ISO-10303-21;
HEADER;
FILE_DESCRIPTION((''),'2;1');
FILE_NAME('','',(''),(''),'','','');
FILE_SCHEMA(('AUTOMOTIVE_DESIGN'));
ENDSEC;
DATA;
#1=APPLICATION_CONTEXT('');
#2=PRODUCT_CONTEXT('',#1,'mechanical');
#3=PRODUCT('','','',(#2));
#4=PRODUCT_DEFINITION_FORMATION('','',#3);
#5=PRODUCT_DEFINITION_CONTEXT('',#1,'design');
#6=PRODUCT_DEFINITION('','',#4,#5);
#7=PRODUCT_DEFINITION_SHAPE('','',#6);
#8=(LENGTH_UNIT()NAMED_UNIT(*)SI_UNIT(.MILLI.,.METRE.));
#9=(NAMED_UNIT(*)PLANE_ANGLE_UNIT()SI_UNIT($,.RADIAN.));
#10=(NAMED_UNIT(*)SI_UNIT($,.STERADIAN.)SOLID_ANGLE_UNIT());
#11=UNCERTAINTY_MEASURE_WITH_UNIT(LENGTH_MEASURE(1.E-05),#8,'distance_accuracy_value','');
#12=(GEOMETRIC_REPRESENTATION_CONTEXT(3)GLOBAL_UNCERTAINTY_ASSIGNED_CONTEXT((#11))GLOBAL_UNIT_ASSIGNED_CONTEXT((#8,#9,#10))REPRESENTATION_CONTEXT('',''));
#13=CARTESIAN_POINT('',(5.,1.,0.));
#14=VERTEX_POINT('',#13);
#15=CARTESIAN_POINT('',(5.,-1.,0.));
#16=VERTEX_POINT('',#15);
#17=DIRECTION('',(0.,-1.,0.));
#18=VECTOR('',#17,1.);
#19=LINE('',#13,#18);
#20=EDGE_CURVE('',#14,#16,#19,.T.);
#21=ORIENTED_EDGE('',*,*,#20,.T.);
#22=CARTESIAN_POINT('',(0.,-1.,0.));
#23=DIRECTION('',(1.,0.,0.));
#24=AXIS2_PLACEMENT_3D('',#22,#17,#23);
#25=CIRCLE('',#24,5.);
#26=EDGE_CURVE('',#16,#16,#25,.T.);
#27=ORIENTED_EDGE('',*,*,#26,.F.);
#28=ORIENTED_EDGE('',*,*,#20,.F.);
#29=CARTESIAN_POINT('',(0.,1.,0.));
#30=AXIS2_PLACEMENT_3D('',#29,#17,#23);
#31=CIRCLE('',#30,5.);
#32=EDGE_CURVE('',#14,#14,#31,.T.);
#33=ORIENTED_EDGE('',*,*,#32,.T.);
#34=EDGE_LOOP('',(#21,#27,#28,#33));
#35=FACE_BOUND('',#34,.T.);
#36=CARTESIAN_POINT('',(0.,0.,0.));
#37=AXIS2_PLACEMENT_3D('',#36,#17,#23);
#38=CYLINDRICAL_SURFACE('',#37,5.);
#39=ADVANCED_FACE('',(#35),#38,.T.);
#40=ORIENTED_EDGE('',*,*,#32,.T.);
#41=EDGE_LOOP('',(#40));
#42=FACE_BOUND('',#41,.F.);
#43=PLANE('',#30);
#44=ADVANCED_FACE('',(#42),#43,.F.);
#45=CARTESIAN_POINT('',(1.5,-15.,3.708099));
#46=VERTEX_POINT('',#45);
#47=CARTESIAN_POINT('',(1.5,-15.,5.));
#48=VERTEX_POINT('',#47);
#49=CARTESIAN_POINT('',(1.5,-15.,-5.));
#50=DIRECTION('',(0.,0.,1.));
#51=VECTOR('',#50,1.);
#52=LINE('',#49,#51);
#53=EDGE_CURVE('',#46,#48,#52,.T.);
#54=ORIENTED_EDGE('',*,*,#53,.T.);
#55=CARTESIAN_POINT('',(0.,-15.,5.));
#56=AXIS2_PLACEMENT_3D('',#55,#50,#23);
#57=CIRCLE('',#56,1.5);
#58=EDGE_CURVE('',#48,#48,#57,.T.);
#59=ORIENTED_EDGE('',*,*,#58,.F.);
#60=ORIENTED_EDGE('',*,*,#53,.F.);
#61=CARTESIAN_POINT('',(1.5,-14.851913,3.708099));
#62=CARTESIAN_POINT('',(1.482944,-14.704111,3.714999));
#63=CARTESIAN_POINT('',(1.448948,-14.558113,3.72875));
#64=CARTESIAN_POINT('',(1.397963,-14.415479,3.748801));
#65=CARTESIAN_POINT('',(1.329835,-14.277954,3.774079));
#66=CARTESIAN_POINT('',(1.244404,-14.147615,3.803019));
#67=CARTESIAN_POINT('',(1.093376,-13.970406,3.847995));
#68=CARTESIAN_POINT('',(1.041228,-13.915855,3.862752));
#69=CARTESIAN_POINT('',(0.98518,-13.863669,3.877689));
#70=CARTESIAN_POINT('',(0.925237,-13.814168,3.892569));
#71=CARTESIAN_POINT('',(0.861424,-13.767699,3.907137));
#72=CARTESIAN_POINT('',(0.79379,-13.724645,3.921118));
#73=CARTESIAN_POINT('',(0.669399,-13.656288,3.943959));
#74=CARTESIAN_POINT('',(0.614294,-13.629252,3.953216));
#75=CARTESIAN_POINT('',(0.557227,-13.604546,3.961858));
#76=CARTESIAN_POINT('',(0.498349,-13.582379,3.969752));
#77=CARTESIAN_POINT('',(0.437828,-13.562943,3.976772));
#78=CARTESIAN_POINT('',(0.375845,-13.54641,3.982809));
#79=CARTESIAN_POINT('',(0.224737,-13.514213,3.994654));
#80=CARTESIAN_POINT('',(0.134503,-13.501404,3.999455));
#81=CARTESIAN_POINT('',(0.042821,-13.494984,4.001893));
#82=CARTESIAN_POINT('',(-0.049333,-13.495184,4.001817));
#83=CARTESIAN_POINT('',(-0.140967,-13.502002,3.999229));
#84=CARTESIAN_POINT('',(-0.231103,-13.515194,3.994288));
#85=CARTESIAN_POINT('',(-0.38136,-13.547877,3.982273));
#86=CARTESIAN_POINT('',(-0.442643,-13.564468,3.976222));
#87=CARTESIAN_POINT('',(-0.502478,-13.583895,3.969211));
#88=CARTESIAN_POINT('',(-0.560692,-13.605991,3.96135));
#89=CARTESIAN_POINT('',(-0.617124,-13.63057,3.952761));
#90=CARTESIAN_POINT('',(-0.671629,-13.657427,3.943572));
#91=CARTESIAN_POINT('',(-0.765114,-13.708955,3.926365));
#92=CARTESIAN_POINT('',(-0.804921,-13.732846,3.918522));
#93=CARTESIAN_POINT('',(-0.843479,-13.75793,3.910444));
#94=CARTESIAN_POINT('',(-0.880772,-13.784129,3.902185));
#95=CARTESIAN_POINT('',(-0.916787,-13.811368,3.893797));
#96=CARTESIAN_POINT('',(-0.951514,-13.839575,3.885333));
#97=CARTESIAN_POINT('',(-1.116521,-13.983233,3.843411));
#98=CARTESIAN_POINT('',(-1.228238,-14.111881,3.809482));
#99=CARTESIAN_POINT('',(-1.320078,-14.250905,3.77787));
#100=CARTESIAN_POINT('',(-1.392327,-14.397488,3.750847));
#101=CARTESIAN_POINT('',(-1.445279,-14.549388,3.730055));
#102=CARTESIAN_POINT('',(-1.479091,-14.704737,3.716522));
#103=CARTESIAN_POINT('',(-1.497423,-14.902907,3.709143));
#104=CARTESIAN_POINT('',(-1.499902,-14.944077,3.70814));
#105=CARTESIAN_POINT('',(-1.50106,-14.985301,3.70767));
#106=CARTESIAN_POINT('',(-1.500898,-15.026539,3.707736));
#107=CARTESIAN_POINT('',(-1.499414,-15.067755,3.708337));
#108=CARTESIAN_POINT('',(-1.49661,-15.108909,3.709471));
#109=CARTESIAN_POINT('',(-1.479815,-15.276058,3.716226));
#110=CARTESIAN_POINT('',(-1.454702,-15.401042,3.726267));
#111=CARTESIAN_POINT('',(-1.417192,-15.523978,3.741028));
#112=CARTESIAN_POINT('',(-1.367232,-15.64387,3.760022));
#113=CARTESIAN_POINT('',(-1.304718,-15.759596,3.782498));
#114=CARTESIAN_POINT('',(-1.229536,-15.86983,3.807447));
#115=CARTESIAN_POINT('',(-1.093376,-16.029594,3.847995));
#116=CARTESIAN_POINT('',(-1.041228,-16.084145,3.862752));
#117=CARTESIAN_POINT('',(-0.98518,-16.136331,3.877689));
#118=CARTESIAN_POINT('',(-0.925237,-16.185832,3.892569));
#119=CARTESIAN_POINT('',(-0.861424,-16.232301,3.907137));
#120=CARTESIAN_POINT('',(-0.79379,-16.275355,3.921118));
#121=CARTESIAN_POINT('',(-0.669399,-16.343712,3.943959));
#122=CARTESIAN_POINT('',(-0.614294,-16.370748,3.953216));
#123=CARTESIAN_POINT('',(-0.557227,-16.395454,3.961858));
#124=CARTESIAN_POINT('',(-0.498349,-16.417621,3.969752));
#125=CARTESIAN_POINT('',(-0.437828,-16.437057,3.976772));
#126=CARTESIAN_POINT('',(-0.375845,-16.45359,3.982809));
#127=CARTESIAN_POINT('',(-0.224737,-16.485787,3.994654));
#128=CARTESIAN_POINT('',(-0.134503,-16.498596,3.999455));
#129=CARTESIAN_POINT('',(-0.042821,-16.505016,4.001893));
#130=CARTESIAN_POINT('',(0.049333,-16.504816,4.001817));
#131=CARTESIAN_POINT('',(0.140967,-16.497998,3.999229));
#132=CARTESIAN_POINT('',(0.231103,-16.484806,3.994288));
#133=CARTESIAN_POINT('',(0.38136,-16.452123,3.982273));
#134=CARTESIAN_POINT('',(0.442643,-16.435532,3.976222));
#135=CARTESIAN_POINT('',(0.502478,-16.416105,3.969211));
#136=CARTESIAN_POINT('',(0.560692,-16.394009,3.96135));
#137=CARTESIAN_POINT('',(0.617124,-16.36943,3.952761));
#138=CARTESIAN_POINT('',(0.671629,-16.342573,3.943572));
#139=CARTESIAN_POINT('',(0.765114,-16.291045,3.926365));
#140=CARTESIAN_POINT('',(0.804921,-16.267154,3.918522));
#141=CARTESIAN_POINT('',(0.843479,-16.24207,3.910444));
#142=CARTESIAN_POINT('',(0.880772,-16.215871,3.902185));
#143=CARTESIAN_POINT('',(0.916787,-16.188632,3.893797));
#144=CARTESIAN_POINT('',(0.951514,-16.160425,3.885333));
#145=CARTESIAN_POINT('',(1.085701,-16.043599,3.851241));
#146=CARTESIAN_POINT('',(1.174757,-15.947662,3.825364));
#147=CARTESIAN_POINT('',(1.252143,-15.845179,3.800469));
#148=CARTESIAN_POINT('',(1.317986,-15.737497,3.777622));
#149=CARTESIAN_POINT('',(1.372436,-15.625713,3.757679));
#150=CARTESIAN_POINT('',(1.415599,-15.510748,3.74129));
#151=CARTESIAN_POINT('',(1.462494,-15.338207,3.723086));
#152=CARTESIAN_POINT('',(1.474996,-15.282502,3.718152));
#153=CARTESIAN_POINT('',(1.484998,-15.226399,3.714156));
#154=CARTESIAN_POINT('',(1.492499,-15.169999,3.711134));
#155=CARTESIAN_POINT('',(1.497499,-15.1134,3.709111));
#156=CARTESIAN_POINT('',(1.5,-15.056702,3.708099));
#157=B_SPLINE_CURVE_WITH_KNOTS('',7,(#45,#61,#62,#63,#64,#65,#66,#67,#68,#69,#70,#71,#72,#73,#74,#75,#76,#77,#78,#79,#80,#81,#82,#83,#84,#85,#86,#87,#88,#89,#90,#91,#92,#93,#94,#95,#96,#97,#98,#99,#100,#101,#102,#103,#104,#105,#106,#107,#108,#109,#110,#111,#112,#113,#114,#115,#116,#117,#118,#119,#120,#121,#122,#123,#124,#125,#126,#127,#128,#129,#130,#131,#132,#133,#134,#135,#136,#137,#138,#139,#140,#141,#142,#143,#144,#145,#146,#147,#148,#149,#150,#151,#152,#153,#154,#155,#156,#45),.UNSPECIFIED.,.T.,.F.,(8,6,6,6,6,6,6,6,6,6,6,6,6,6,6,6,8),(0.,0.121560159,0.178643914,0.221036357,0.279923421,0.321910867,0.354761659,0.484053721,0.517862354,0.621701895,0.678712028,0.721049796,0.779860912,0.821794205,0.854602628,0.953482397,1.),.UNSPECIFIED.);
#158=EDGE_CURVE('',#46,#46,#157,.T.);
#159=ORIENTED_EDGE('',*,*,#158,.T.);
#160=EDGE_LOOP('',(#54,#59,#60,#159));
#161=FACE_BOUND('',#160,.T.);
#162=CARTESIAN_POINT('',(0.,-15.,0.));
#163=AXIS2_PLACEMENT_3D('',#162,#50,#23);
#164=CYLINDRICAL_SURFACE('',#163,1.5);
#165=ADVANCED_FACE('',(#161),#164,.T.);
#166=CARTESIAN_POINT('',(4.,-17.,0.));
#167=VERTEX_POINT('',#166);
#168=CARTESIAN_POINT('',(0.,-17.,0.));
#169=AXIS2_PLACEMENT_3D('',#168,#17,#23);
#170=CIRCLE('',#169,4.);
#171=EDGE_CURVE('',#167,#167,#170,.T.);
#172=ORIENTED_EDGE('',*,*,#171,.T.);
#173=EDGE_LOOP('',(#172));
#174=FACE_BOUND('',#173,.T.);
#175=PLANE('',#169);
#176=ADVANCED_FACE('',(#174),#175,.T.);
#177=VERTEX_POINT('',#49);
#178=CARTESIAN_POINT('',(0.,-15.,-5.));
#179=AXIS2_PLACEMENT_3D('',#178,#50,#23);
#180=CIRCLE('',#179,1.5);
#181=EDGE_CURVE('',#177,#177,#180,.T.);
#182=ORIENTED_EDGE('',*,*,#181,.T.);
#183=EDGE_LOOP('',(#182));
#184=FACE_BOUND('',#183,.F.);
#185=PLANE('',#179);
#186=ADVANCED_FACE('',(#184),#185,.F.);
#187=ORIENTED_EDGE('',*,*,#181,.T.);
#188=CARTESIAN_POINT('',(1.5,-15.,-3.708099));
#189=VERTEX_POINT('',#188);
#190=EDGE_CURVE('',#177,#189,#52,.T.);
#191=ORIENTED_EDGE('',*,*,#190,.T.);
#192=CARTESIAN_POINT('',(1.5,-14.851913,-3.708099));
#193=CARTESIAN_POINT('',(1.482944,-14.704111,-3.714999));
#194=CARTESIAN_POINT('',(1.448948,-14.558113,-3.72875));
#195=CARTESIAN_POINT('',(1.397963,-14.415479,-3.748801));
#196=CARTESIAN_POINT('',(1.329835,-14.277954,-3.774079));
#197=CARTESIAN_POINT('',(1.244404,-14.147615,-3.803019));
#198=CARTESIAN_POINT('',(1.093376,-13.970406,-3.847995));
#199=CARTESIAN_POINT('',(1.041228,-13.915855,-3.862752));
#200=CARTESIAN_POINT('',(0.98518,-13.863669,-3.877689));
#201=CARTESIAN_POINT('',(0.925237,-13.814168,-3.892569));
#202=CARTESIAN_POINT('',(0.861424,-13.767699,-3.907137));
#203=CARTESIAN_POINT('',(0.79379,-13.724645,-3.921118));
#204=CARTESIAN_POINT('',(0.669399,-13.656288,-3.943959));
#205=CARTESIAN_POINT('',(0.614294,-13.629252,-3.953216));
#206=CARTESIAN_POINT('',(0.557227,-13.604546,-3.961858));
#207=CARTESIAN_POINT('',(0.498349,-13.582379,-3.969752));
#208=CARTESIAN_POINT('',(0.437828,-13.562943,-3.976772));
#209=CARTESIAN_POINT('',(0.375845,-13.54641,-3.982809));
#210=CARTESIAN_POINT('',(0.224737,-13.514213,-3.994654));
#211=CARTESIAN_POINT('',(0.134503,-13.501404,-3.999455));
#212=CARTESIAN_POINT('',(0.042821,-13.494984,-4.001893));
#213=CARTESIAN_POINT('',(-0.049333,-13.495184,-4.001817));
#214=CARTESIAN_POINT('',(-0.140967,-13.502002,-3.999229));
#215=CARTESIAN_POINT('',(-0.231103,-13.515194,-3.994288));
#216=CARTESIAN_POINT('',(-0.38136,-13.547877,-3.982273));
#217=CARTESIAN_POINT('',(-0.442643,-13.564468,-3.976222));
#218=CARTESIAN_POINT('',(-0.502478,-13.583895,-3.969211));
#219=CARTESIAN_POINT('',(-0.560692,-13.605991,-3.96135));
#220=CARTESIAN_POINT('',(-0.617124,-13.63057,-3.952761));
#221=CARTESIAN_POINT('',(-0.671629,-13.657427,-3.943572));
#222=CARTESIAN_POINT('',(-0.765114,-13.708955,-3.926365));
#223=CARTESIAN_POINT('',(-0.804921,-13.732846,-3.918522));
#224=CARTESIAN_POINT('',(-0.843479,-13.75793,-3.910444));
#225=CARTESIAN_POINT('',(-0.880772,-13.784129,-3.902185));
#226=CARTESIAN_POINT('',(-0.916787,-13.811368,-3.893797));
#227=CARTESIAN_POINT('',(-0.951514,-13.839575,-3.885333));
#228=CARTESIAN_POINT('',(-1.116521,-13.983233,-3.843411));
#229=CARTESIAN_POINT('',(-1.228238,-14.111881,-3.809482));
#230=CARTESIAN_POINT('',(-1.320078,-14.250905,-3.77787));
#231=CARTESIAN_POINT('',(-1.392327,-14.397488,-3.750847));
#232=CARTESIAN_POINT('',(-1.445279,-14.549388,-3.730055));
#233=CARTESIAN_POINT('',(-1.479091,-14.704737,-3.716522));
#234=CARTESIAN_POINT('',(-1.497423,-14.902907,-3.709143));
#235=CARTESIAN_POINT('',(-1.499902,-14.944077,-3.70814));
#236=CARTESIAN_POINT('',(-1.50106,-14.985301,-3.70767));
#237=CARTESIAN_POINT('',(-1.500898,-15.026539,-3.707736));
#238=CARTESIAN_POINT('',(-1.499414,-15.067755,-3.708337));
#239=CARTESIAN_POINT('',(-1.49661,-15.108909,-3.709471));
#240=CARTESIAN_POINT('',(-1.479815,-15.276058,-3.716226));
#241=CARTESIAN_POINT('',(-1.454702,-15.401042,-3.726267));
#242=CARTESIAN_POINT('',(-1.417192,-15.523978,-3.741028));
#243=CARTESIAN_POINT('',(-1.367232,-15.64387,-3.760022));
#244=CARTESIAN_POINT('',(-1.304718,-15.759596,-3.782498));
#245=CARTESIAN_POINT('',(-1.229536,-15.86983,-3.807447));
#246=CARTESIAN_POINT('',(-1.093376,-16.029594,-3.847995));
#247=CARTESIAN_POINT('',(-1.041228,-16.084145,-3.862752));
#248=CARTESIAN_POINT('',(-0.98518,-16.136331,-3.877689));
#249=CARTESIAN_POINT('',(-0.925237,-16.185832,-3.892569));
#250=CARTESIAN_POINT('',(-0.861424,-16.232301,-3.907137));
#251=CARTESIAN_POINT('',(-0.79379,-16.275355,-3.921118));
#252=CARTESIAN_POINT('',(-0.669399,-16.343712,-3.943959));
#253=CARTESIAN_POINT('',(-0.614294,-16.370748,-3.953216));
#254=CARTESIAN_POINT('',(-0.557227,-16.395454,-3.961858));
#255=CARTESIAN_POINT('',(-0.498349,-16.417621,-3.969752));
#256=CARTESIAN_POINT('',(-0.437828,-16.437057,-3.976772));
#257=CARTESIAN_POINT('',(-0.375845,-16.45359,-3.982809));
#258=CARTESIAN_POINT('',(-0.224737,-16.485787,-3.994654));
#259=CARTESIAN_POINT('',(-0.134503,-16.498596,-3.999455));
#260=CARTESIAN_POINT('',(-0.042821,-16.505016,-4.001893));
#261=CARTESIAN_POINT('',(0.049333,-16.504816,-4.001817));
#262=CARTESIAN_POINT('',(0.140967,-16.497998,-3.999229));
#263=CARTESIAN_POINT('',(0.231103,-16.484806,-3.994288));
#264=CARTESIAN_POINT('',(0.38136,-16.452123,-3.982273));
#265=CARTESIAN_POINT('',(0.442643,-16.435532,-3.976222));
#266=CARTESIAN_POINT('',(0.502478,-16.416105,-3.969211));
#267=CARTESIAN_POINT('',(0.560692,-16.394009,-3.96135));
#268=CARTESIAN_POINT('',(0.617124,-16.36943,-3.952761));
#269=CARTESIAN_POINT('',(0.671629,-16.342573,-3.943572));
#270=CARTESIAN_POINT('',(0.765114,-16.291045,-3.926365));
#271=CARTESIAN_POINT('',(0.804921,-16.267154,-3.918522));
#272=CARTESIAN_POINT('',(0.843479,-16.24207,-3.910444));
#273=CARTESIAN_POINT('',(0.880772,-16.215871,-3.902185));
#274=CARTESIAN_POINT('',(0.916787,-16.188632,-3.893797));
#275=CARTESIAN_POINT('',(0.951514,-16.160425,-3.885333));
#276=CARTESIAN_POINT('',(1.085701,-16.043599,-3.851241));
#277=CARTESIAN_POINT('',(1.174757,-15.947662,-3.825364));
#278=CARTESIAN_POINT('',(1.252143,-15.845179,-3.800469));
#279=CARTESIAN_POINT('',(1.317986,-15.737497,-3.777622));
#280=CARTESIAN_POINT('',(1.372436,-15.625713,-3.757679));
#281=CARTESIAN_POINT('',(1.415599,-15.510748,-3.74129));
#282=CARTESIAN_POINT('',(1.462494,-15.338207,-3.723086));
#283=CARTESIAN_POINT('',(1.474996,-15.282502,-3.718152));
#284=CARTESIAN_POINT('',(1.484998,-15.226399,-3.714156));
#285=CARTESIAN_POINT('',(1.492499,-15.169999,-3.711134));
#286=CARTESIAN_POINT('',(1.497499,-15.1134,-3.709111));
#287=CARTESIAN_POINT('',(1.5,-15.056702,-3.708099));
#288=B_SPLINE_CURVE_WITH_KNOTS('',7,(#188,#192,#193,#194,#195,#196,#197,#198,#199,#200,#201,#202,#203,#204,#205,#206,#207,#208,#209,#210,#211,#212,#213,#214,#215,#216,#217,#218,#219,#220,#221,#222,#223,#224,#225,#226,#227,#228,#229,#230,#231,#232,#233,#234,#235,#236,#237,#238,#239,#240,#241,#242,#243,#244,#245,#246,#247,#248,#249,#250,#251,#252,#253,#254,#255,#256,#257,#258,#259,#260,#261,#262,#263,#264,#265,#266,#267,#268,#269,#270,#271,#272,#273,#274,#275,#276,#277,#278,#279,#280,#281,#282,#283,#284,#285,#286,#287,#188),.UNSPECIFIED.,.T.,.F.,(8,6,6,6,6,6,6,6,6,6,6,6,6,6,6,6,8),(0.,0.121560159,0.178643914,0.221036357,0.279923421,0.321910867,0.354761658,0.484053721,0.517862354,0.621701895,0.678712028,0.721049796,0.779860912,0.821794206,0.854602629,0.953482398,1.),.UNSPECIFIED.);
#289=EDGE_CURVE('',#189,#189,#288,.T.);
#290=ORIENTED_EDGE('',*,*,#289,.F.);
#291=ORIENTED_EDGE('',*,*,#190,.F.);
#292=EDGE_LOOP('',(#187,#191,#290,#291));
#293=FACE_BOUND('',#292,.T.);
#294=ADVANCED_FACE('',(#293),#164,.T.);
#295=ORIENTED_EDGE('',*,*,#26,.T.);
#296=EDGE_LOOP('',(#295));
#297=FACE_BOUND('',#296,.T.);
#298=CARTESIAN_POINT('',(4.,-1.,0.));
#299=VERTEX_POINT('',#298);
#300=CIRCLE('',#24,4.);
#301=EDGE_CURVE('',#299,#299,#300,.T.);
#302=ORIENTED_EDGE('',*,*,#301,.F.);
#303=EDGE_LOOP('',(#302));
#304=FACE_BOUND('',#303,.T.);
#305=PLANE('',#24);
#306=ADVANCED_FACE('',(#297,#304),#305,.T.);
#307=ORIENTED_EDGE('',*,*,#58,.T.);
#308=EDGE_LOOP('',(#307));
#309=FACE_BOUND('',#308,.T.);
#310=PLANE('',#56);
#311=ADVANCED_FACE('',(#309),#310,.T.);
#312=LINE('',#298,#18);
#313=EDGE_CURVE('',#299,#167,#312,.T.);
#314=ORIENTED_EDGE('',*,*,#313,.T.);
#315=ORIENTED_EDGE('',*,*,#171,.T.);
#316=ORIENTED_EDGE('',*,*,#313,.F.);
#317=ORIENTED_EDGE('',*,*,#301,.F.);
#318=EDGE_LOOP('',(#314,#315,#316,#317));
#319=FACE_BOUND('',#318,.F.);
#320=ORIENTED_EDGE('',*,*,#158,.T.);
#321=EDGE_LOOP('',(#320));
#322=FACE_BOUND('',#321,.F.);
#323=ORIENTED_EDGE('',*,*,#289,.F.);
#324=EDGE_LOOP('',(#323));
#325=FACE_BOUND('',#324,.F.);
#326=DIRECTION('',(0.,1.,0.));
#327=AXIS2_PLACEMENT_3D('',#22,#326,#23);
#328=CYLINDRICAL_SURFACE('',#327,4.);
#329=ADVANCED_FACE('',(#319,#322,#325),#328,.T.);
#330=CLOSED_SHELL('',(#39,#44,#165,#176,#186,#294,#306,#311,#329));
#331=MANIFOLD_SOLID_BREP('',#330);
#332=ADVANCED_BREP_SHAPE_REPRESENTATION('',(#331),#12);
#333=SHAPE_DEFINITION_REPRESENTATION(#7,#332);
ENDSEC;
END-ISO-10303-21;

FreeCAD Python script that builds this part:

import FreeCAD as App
import Part
import Sketcher
from FreeCAD import Vector

doc = App.newDocument("Part")
body = doc.addObject("PartDesign::Body", "Body")

# Sketch on XZ plane
sketch1 = body.newObject("Sketcher::SketchObject", "Sketch")
sketch1.AttachmentSupport = (doc.getObject("XZ_Plane"), [""])
sketch1.MapMode = "FlatFace"
sketch1.addGeometry(Part.Circle(Vector(0, 0, 0), Vector(0, 0, 1), 5), False)
sketch1.addConstraint([
    Sketcher.Constraint("Coincident", 0, 3, -1, 1),
    Sketcher.Constraint("Diameter", 0, 10.0),
])
pad1 = body.newObject("PartDesign::Pad", "Pad")
pad1.Profile = sketch1
pad1.Length = 2
pad1.Midplane = True

# Sketch on XZ plane
sketch2 = body.newObject("Sketcher::SketchObject", "Sketch001")
sketch2.AttachmentSupport = (doc.getObject("XZ_Plane"), [""])
sketch2.MapMode = "FlatFace"
sketch2.AttachmentOffset = App.Placement(Vector(0, 0, 1), App.Rotation())
sketch2.addGeometry(Part.Circle(Vector(0, 0, 0), Vector(0, 0, 1), 4), False)
sketch2.addConstraint([
    Sketcher.Constraint("Coincident", 0, 3, -1, 1),
    Sketcher.Constraint("Diameter", 0, 8.0),
])
pad2 = body.newObject("PartDesign::Pad", "Pad001")
pad2.Profile = sketch2
pad2.Length = 16

# Sketch on XY plane
sketch3 = body.newObject("Sketcher::SketchObject", "Sketch002")
sketch3.AttachmentSupport = (doc.getObject("XY_Plane"), [""])
sketch3.MapMode = "FlatFace"
sketch3.addGeometry(Part.Circle(Vector(0, -15, 0), Vector(0, 0, 1), 1.5), False)
sketch3.addConstraint([
    Sketcher.Constraint("PointOnObject", 0, 3, -2),
    Sketcher.Constraint("Diameter", 0, 3.0),
    Sketcher.Constraint("DistanceY", 0, 3, -1, 1, 15.0),
])
pad3 = body.newObject("PartDesign::Pad", "Pad002")
pad3.Profile = sketch3
pad3.Length = 10
pad3.Midplane = True

doc.recompute()
